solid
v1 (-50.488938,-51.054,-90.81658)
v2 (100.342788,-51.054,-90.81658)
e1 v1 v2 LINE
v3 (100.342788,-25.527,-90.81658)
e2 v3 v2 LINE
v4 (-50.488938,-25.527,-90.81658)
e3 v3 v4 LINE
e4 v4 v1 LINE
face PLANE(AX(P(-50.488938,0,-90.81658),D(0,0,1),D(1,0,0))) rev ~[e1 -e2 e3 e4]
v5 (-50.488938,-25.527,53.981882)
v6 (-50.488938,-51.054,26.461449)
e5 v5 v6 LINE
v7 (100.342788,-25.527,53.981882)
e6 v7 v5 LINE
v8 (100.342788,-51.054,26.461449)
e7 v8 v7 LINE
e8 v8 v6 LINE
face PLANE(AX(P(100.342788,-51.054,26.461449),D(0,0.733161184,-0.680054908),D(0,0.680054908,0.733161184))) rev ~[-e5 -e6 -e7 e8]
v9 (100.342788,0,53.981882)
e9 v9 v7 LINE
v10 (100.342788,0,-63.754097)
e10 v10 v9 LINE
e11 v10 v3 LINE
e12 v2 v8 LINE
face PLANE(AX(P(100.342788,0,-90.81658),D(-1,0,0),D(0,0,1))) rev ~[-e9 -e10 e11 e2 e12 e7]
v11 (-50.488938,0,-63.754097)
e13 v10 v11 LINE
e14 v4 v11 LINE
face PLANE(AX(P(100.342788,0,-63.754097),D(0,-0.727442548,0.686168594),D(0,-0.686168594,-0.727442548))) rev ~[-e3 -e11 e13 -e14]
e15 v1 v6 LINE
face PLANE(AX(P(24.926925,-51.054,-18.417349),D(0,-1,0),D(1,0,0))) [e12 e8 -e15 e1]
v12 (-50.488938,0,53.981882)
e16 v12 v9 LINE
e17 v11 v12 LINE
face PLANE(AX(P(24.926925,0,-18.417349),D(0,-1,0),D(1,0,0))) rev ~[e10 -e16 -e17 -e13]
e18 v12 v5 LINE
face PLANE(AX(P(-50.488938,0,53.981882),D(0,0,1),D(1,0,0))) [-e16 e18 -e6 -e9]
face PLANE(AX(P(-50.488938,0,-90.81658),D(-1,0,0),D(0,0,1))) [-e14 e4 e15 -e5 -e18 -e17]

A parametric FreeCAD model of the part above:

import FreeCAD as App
import Part
import Sketcher
Q = App.Units.Quantity


def add_polygon(sketch, points):
    """Adds a closed chain of lines whose ends are joined by coincident constraints."""
    first, n = sketch.GeometryCount, len(points)
    for a, b in zip(points, points[1:] + points[:1]):
        sketch.addGeometry(Part.LineSegment(App.Vector(*a, 0), App.Vector(*b, 0)), False)
    for i in range(n):
        sketch.addConstraint(Sketcher.Constraint("Coincident", first + i, 2, first + (i + 1) % n, 1))

doc = App.newDocument("Part")
params = doc.addObject("Spreadsheet::Sheet", "Params")
for row, (alias, value) in enumerate([
    ("pad1_length", "2.01 in"),
    ("sketch2_width", "1.005 in"),
    ("pocket1_length", "6.3 in"),
], start=1):
    params.set(f"A{row}", alias)
    params.set(f"B{row}", "=" + value)
    params.setAlias(f"B{row}", alias)

body = doc.addObject("PartDesign::Body", "Body")

sketch1 = body.newObject("Sketcher::SketchObject", "Sketch")
sketch1.AttachmentSupport = (doc.getObject("XZ_Plane"), [""])
sketch1.MapMode = "FlatFace"
add_polygon(sketch1, [(-50, 54), (-50, -91), (100, -91), (100, 54)])
sketch1.addConstraint([
    Sketcher.Constraint("Vertical", 0),
    Sketcher.Constraint("Horizontal", 1),
    Sketcher.Constraint("Vertical", 2),
    Sketcher.Constraint("Horizontal", 3),
    Sketcher.Constraint("DistanceY", 0, 2, 0, 1, Q("144.798462 mm")),
    Sketcher.Constraint("DistanceX", 1, 1, 1, 2, Q("150.831726 mm")),
    Sketcher.Constraint("DistanceY", 0, 2, -1, 1, Q("90.81658 mm")),
    Sketcher.Constraint("DistanceX", -1, 1, 1, 2, Q("100.342788 mm")),
])
pad1 = body.newObject("PartDesign::Pad", "Pad")
pad1.Profile = sketch1
pad1.setExpression("Length", "Params.pad1_length")

sketch2 = body.newObject("Sketcher::SketchObject", "Sketch001")
sketch2.AttachmentSupport = (doc.getObject("YZ_Plane"), [""])
sketch2.MapMode = "FlatFace"
sketch2.AttachmentOffset = App.Placement(App.Vector(0, 0, 100.342788), App.Rotation())
add_polygon(sketch2, [(-51, 54), (-51, 26), (-26, 54)])
add_polygon(sketch2, [(0, -64), (-26, -91), (0, -91)])
sketch2.addConstraint([
    Sketcher.Constraint("Vertical", 0),
    Sketcher.Constraint("Horizontal", 2),
    Sketcher.Constraint("Horizontal", 4),
    Sketcher.Constraint("Vertical", 5),
    Sketcher.Constraint("PointOnObject", 4, 2, -2),
    Sketcher.Constraint("Vertical", 1, 2, 3, 2),
    Sketcher.Constraint("Equal", 2, 4),
    Sketcher.Constraint("DistanceX", 2, 2, 2, 1, Q("1.005 in")),
    Sketcher.Constraint("DistanceY", 0, 2, 0, 1, Q("27.520433 mm")),
    Sketcher.Constraint("DistanceY", 5, 1, 5, 2, Q("27.062483 mm")),
    Sketcher.Constraint("DistanceY", -1, 1, 0, 2, Q("26.461449 mm")),
    Sketcher.Constraint("DistanceY", 3, 2, -1, 1, Q("90.81658 mm")),
])
sketch2.setExpression("Constraints[13]", "Params.sketch2_width")
pocket1 = body.newObject("PartDesign::Pocket", "Pocket")
pocket1.Profile = sketch2
pocket1.setExpression("Length", "Params.pocket1_length")

doc.recompute()
